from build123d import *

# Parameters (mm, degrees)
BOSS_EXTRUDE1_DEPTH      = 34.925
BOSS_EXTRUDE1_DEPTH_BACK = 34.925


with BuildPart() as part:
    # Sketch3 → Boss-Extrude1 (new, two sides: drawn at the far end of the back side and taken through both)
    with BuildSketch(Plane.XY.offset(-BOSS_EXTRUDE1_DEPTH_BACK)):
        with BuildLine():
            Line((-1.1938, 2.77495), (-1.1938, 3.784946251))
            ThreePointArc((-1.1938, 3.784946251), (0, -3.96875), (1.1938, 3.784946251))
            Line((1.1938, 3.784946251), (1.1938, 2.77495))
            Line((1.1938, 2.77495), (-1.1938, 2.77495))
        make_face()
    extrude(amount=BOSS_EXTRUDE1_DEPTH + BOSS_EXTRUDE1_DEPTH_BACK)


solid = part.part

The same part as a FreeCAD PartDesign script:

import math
import FreeCAD as App
import Part
import Sketcher

V = App.Vector
Q = App.Units.Quantity

doc = App.newDocument("Part")
params = doc.addObject("Spreadsheet::Sheet", "Params")
for row, (alias, value) in enumerate([
    ("sketch1_radius", "0.15625 in"),
    ("sketch1_width", "0.094 in"),
    ("pad1_length", "1.375 in"),
    ("pad1_length2", "1.375 in"),
], start=1):
    params.set(f"A{row}", alias)
    params.set(f"B{row}", "=" + value)
    params.setAlias(f"B{row}", alias)

body = doc.addObject("PartDesign::Body", "Body")

sketch1 = body.newObject("Sketcher::SketchObject", "Sketch")
sketch1.AttachmentSupport = (doc.getObject("XY_Plane"), [""])
sketch1.MapMode = "FlatFace"
sketch1.addGeometry([
    Part.LineSegment(V(-1.1938, 2.77495, 0), V(-1.1938, 3.784946, 0)),
    Part.ArcOfCircle(Part.Circle(V(0, 0, 0), V(0, 0, 1), 3.96875), math.radians(107.505659), math.radians(432.494341)),
    Part.LineSegment(V(1.1938, 3.784946, 0), V(1.1938, 2.77495, 0)),
    Part.LineSegment(V(1.1938, 2.77495, 0), V(-1.1938, 2.77495, 0)),
], False)
sketch1.addConstraint([
    Sketcher.Constraint("Coincident", 0, 2, 1, 1),
    Sketcher.Constraint("Coincident", 1, 2, 2, 1),
    Sketcher.Constraint("Coincident", 2, 2, 3, 1),
    Sketcher.Constraint("Coincident", 3, 2, 0, 1),
    Sketcher.Constraint("Vertical", 0),
    Sketcher.Constraint("Vertical", 2),
    Sketcher.Constraint("Horizontal", 3),
    Sketcher.Constraint("Coincident", 1, 3, -1, 1),
    Sketcher.Constraint("Horizontal", 0, 2, 1, 2),
    Sketcher.Constraint("Radius", 1, Q("0.15625 in")),
    Sketcher.Constraint("DistanceX", 3, 2, 3, 1, Q("0.094 in")),
    Sketcher.Constraint("DistanceY", 0, 1, 0, 2, Q("1.009996 mm")),
])
sketch1.setExpression("Constraints[9]", "Params.sketch1_radius")
sketch1.setExpression("Constraints[10]", "Params.sketch1_width")
pad1 = body.newObject("PartDesign::Pad", "Pad")
pad1.Profile = sketch1
pad1.Type = "TwoLengths"
pad1.setExpression("Length", "Params.pad1_length")
pad1.setExpression("Length2", "Params.pad1_length2")

doc.recompute()
